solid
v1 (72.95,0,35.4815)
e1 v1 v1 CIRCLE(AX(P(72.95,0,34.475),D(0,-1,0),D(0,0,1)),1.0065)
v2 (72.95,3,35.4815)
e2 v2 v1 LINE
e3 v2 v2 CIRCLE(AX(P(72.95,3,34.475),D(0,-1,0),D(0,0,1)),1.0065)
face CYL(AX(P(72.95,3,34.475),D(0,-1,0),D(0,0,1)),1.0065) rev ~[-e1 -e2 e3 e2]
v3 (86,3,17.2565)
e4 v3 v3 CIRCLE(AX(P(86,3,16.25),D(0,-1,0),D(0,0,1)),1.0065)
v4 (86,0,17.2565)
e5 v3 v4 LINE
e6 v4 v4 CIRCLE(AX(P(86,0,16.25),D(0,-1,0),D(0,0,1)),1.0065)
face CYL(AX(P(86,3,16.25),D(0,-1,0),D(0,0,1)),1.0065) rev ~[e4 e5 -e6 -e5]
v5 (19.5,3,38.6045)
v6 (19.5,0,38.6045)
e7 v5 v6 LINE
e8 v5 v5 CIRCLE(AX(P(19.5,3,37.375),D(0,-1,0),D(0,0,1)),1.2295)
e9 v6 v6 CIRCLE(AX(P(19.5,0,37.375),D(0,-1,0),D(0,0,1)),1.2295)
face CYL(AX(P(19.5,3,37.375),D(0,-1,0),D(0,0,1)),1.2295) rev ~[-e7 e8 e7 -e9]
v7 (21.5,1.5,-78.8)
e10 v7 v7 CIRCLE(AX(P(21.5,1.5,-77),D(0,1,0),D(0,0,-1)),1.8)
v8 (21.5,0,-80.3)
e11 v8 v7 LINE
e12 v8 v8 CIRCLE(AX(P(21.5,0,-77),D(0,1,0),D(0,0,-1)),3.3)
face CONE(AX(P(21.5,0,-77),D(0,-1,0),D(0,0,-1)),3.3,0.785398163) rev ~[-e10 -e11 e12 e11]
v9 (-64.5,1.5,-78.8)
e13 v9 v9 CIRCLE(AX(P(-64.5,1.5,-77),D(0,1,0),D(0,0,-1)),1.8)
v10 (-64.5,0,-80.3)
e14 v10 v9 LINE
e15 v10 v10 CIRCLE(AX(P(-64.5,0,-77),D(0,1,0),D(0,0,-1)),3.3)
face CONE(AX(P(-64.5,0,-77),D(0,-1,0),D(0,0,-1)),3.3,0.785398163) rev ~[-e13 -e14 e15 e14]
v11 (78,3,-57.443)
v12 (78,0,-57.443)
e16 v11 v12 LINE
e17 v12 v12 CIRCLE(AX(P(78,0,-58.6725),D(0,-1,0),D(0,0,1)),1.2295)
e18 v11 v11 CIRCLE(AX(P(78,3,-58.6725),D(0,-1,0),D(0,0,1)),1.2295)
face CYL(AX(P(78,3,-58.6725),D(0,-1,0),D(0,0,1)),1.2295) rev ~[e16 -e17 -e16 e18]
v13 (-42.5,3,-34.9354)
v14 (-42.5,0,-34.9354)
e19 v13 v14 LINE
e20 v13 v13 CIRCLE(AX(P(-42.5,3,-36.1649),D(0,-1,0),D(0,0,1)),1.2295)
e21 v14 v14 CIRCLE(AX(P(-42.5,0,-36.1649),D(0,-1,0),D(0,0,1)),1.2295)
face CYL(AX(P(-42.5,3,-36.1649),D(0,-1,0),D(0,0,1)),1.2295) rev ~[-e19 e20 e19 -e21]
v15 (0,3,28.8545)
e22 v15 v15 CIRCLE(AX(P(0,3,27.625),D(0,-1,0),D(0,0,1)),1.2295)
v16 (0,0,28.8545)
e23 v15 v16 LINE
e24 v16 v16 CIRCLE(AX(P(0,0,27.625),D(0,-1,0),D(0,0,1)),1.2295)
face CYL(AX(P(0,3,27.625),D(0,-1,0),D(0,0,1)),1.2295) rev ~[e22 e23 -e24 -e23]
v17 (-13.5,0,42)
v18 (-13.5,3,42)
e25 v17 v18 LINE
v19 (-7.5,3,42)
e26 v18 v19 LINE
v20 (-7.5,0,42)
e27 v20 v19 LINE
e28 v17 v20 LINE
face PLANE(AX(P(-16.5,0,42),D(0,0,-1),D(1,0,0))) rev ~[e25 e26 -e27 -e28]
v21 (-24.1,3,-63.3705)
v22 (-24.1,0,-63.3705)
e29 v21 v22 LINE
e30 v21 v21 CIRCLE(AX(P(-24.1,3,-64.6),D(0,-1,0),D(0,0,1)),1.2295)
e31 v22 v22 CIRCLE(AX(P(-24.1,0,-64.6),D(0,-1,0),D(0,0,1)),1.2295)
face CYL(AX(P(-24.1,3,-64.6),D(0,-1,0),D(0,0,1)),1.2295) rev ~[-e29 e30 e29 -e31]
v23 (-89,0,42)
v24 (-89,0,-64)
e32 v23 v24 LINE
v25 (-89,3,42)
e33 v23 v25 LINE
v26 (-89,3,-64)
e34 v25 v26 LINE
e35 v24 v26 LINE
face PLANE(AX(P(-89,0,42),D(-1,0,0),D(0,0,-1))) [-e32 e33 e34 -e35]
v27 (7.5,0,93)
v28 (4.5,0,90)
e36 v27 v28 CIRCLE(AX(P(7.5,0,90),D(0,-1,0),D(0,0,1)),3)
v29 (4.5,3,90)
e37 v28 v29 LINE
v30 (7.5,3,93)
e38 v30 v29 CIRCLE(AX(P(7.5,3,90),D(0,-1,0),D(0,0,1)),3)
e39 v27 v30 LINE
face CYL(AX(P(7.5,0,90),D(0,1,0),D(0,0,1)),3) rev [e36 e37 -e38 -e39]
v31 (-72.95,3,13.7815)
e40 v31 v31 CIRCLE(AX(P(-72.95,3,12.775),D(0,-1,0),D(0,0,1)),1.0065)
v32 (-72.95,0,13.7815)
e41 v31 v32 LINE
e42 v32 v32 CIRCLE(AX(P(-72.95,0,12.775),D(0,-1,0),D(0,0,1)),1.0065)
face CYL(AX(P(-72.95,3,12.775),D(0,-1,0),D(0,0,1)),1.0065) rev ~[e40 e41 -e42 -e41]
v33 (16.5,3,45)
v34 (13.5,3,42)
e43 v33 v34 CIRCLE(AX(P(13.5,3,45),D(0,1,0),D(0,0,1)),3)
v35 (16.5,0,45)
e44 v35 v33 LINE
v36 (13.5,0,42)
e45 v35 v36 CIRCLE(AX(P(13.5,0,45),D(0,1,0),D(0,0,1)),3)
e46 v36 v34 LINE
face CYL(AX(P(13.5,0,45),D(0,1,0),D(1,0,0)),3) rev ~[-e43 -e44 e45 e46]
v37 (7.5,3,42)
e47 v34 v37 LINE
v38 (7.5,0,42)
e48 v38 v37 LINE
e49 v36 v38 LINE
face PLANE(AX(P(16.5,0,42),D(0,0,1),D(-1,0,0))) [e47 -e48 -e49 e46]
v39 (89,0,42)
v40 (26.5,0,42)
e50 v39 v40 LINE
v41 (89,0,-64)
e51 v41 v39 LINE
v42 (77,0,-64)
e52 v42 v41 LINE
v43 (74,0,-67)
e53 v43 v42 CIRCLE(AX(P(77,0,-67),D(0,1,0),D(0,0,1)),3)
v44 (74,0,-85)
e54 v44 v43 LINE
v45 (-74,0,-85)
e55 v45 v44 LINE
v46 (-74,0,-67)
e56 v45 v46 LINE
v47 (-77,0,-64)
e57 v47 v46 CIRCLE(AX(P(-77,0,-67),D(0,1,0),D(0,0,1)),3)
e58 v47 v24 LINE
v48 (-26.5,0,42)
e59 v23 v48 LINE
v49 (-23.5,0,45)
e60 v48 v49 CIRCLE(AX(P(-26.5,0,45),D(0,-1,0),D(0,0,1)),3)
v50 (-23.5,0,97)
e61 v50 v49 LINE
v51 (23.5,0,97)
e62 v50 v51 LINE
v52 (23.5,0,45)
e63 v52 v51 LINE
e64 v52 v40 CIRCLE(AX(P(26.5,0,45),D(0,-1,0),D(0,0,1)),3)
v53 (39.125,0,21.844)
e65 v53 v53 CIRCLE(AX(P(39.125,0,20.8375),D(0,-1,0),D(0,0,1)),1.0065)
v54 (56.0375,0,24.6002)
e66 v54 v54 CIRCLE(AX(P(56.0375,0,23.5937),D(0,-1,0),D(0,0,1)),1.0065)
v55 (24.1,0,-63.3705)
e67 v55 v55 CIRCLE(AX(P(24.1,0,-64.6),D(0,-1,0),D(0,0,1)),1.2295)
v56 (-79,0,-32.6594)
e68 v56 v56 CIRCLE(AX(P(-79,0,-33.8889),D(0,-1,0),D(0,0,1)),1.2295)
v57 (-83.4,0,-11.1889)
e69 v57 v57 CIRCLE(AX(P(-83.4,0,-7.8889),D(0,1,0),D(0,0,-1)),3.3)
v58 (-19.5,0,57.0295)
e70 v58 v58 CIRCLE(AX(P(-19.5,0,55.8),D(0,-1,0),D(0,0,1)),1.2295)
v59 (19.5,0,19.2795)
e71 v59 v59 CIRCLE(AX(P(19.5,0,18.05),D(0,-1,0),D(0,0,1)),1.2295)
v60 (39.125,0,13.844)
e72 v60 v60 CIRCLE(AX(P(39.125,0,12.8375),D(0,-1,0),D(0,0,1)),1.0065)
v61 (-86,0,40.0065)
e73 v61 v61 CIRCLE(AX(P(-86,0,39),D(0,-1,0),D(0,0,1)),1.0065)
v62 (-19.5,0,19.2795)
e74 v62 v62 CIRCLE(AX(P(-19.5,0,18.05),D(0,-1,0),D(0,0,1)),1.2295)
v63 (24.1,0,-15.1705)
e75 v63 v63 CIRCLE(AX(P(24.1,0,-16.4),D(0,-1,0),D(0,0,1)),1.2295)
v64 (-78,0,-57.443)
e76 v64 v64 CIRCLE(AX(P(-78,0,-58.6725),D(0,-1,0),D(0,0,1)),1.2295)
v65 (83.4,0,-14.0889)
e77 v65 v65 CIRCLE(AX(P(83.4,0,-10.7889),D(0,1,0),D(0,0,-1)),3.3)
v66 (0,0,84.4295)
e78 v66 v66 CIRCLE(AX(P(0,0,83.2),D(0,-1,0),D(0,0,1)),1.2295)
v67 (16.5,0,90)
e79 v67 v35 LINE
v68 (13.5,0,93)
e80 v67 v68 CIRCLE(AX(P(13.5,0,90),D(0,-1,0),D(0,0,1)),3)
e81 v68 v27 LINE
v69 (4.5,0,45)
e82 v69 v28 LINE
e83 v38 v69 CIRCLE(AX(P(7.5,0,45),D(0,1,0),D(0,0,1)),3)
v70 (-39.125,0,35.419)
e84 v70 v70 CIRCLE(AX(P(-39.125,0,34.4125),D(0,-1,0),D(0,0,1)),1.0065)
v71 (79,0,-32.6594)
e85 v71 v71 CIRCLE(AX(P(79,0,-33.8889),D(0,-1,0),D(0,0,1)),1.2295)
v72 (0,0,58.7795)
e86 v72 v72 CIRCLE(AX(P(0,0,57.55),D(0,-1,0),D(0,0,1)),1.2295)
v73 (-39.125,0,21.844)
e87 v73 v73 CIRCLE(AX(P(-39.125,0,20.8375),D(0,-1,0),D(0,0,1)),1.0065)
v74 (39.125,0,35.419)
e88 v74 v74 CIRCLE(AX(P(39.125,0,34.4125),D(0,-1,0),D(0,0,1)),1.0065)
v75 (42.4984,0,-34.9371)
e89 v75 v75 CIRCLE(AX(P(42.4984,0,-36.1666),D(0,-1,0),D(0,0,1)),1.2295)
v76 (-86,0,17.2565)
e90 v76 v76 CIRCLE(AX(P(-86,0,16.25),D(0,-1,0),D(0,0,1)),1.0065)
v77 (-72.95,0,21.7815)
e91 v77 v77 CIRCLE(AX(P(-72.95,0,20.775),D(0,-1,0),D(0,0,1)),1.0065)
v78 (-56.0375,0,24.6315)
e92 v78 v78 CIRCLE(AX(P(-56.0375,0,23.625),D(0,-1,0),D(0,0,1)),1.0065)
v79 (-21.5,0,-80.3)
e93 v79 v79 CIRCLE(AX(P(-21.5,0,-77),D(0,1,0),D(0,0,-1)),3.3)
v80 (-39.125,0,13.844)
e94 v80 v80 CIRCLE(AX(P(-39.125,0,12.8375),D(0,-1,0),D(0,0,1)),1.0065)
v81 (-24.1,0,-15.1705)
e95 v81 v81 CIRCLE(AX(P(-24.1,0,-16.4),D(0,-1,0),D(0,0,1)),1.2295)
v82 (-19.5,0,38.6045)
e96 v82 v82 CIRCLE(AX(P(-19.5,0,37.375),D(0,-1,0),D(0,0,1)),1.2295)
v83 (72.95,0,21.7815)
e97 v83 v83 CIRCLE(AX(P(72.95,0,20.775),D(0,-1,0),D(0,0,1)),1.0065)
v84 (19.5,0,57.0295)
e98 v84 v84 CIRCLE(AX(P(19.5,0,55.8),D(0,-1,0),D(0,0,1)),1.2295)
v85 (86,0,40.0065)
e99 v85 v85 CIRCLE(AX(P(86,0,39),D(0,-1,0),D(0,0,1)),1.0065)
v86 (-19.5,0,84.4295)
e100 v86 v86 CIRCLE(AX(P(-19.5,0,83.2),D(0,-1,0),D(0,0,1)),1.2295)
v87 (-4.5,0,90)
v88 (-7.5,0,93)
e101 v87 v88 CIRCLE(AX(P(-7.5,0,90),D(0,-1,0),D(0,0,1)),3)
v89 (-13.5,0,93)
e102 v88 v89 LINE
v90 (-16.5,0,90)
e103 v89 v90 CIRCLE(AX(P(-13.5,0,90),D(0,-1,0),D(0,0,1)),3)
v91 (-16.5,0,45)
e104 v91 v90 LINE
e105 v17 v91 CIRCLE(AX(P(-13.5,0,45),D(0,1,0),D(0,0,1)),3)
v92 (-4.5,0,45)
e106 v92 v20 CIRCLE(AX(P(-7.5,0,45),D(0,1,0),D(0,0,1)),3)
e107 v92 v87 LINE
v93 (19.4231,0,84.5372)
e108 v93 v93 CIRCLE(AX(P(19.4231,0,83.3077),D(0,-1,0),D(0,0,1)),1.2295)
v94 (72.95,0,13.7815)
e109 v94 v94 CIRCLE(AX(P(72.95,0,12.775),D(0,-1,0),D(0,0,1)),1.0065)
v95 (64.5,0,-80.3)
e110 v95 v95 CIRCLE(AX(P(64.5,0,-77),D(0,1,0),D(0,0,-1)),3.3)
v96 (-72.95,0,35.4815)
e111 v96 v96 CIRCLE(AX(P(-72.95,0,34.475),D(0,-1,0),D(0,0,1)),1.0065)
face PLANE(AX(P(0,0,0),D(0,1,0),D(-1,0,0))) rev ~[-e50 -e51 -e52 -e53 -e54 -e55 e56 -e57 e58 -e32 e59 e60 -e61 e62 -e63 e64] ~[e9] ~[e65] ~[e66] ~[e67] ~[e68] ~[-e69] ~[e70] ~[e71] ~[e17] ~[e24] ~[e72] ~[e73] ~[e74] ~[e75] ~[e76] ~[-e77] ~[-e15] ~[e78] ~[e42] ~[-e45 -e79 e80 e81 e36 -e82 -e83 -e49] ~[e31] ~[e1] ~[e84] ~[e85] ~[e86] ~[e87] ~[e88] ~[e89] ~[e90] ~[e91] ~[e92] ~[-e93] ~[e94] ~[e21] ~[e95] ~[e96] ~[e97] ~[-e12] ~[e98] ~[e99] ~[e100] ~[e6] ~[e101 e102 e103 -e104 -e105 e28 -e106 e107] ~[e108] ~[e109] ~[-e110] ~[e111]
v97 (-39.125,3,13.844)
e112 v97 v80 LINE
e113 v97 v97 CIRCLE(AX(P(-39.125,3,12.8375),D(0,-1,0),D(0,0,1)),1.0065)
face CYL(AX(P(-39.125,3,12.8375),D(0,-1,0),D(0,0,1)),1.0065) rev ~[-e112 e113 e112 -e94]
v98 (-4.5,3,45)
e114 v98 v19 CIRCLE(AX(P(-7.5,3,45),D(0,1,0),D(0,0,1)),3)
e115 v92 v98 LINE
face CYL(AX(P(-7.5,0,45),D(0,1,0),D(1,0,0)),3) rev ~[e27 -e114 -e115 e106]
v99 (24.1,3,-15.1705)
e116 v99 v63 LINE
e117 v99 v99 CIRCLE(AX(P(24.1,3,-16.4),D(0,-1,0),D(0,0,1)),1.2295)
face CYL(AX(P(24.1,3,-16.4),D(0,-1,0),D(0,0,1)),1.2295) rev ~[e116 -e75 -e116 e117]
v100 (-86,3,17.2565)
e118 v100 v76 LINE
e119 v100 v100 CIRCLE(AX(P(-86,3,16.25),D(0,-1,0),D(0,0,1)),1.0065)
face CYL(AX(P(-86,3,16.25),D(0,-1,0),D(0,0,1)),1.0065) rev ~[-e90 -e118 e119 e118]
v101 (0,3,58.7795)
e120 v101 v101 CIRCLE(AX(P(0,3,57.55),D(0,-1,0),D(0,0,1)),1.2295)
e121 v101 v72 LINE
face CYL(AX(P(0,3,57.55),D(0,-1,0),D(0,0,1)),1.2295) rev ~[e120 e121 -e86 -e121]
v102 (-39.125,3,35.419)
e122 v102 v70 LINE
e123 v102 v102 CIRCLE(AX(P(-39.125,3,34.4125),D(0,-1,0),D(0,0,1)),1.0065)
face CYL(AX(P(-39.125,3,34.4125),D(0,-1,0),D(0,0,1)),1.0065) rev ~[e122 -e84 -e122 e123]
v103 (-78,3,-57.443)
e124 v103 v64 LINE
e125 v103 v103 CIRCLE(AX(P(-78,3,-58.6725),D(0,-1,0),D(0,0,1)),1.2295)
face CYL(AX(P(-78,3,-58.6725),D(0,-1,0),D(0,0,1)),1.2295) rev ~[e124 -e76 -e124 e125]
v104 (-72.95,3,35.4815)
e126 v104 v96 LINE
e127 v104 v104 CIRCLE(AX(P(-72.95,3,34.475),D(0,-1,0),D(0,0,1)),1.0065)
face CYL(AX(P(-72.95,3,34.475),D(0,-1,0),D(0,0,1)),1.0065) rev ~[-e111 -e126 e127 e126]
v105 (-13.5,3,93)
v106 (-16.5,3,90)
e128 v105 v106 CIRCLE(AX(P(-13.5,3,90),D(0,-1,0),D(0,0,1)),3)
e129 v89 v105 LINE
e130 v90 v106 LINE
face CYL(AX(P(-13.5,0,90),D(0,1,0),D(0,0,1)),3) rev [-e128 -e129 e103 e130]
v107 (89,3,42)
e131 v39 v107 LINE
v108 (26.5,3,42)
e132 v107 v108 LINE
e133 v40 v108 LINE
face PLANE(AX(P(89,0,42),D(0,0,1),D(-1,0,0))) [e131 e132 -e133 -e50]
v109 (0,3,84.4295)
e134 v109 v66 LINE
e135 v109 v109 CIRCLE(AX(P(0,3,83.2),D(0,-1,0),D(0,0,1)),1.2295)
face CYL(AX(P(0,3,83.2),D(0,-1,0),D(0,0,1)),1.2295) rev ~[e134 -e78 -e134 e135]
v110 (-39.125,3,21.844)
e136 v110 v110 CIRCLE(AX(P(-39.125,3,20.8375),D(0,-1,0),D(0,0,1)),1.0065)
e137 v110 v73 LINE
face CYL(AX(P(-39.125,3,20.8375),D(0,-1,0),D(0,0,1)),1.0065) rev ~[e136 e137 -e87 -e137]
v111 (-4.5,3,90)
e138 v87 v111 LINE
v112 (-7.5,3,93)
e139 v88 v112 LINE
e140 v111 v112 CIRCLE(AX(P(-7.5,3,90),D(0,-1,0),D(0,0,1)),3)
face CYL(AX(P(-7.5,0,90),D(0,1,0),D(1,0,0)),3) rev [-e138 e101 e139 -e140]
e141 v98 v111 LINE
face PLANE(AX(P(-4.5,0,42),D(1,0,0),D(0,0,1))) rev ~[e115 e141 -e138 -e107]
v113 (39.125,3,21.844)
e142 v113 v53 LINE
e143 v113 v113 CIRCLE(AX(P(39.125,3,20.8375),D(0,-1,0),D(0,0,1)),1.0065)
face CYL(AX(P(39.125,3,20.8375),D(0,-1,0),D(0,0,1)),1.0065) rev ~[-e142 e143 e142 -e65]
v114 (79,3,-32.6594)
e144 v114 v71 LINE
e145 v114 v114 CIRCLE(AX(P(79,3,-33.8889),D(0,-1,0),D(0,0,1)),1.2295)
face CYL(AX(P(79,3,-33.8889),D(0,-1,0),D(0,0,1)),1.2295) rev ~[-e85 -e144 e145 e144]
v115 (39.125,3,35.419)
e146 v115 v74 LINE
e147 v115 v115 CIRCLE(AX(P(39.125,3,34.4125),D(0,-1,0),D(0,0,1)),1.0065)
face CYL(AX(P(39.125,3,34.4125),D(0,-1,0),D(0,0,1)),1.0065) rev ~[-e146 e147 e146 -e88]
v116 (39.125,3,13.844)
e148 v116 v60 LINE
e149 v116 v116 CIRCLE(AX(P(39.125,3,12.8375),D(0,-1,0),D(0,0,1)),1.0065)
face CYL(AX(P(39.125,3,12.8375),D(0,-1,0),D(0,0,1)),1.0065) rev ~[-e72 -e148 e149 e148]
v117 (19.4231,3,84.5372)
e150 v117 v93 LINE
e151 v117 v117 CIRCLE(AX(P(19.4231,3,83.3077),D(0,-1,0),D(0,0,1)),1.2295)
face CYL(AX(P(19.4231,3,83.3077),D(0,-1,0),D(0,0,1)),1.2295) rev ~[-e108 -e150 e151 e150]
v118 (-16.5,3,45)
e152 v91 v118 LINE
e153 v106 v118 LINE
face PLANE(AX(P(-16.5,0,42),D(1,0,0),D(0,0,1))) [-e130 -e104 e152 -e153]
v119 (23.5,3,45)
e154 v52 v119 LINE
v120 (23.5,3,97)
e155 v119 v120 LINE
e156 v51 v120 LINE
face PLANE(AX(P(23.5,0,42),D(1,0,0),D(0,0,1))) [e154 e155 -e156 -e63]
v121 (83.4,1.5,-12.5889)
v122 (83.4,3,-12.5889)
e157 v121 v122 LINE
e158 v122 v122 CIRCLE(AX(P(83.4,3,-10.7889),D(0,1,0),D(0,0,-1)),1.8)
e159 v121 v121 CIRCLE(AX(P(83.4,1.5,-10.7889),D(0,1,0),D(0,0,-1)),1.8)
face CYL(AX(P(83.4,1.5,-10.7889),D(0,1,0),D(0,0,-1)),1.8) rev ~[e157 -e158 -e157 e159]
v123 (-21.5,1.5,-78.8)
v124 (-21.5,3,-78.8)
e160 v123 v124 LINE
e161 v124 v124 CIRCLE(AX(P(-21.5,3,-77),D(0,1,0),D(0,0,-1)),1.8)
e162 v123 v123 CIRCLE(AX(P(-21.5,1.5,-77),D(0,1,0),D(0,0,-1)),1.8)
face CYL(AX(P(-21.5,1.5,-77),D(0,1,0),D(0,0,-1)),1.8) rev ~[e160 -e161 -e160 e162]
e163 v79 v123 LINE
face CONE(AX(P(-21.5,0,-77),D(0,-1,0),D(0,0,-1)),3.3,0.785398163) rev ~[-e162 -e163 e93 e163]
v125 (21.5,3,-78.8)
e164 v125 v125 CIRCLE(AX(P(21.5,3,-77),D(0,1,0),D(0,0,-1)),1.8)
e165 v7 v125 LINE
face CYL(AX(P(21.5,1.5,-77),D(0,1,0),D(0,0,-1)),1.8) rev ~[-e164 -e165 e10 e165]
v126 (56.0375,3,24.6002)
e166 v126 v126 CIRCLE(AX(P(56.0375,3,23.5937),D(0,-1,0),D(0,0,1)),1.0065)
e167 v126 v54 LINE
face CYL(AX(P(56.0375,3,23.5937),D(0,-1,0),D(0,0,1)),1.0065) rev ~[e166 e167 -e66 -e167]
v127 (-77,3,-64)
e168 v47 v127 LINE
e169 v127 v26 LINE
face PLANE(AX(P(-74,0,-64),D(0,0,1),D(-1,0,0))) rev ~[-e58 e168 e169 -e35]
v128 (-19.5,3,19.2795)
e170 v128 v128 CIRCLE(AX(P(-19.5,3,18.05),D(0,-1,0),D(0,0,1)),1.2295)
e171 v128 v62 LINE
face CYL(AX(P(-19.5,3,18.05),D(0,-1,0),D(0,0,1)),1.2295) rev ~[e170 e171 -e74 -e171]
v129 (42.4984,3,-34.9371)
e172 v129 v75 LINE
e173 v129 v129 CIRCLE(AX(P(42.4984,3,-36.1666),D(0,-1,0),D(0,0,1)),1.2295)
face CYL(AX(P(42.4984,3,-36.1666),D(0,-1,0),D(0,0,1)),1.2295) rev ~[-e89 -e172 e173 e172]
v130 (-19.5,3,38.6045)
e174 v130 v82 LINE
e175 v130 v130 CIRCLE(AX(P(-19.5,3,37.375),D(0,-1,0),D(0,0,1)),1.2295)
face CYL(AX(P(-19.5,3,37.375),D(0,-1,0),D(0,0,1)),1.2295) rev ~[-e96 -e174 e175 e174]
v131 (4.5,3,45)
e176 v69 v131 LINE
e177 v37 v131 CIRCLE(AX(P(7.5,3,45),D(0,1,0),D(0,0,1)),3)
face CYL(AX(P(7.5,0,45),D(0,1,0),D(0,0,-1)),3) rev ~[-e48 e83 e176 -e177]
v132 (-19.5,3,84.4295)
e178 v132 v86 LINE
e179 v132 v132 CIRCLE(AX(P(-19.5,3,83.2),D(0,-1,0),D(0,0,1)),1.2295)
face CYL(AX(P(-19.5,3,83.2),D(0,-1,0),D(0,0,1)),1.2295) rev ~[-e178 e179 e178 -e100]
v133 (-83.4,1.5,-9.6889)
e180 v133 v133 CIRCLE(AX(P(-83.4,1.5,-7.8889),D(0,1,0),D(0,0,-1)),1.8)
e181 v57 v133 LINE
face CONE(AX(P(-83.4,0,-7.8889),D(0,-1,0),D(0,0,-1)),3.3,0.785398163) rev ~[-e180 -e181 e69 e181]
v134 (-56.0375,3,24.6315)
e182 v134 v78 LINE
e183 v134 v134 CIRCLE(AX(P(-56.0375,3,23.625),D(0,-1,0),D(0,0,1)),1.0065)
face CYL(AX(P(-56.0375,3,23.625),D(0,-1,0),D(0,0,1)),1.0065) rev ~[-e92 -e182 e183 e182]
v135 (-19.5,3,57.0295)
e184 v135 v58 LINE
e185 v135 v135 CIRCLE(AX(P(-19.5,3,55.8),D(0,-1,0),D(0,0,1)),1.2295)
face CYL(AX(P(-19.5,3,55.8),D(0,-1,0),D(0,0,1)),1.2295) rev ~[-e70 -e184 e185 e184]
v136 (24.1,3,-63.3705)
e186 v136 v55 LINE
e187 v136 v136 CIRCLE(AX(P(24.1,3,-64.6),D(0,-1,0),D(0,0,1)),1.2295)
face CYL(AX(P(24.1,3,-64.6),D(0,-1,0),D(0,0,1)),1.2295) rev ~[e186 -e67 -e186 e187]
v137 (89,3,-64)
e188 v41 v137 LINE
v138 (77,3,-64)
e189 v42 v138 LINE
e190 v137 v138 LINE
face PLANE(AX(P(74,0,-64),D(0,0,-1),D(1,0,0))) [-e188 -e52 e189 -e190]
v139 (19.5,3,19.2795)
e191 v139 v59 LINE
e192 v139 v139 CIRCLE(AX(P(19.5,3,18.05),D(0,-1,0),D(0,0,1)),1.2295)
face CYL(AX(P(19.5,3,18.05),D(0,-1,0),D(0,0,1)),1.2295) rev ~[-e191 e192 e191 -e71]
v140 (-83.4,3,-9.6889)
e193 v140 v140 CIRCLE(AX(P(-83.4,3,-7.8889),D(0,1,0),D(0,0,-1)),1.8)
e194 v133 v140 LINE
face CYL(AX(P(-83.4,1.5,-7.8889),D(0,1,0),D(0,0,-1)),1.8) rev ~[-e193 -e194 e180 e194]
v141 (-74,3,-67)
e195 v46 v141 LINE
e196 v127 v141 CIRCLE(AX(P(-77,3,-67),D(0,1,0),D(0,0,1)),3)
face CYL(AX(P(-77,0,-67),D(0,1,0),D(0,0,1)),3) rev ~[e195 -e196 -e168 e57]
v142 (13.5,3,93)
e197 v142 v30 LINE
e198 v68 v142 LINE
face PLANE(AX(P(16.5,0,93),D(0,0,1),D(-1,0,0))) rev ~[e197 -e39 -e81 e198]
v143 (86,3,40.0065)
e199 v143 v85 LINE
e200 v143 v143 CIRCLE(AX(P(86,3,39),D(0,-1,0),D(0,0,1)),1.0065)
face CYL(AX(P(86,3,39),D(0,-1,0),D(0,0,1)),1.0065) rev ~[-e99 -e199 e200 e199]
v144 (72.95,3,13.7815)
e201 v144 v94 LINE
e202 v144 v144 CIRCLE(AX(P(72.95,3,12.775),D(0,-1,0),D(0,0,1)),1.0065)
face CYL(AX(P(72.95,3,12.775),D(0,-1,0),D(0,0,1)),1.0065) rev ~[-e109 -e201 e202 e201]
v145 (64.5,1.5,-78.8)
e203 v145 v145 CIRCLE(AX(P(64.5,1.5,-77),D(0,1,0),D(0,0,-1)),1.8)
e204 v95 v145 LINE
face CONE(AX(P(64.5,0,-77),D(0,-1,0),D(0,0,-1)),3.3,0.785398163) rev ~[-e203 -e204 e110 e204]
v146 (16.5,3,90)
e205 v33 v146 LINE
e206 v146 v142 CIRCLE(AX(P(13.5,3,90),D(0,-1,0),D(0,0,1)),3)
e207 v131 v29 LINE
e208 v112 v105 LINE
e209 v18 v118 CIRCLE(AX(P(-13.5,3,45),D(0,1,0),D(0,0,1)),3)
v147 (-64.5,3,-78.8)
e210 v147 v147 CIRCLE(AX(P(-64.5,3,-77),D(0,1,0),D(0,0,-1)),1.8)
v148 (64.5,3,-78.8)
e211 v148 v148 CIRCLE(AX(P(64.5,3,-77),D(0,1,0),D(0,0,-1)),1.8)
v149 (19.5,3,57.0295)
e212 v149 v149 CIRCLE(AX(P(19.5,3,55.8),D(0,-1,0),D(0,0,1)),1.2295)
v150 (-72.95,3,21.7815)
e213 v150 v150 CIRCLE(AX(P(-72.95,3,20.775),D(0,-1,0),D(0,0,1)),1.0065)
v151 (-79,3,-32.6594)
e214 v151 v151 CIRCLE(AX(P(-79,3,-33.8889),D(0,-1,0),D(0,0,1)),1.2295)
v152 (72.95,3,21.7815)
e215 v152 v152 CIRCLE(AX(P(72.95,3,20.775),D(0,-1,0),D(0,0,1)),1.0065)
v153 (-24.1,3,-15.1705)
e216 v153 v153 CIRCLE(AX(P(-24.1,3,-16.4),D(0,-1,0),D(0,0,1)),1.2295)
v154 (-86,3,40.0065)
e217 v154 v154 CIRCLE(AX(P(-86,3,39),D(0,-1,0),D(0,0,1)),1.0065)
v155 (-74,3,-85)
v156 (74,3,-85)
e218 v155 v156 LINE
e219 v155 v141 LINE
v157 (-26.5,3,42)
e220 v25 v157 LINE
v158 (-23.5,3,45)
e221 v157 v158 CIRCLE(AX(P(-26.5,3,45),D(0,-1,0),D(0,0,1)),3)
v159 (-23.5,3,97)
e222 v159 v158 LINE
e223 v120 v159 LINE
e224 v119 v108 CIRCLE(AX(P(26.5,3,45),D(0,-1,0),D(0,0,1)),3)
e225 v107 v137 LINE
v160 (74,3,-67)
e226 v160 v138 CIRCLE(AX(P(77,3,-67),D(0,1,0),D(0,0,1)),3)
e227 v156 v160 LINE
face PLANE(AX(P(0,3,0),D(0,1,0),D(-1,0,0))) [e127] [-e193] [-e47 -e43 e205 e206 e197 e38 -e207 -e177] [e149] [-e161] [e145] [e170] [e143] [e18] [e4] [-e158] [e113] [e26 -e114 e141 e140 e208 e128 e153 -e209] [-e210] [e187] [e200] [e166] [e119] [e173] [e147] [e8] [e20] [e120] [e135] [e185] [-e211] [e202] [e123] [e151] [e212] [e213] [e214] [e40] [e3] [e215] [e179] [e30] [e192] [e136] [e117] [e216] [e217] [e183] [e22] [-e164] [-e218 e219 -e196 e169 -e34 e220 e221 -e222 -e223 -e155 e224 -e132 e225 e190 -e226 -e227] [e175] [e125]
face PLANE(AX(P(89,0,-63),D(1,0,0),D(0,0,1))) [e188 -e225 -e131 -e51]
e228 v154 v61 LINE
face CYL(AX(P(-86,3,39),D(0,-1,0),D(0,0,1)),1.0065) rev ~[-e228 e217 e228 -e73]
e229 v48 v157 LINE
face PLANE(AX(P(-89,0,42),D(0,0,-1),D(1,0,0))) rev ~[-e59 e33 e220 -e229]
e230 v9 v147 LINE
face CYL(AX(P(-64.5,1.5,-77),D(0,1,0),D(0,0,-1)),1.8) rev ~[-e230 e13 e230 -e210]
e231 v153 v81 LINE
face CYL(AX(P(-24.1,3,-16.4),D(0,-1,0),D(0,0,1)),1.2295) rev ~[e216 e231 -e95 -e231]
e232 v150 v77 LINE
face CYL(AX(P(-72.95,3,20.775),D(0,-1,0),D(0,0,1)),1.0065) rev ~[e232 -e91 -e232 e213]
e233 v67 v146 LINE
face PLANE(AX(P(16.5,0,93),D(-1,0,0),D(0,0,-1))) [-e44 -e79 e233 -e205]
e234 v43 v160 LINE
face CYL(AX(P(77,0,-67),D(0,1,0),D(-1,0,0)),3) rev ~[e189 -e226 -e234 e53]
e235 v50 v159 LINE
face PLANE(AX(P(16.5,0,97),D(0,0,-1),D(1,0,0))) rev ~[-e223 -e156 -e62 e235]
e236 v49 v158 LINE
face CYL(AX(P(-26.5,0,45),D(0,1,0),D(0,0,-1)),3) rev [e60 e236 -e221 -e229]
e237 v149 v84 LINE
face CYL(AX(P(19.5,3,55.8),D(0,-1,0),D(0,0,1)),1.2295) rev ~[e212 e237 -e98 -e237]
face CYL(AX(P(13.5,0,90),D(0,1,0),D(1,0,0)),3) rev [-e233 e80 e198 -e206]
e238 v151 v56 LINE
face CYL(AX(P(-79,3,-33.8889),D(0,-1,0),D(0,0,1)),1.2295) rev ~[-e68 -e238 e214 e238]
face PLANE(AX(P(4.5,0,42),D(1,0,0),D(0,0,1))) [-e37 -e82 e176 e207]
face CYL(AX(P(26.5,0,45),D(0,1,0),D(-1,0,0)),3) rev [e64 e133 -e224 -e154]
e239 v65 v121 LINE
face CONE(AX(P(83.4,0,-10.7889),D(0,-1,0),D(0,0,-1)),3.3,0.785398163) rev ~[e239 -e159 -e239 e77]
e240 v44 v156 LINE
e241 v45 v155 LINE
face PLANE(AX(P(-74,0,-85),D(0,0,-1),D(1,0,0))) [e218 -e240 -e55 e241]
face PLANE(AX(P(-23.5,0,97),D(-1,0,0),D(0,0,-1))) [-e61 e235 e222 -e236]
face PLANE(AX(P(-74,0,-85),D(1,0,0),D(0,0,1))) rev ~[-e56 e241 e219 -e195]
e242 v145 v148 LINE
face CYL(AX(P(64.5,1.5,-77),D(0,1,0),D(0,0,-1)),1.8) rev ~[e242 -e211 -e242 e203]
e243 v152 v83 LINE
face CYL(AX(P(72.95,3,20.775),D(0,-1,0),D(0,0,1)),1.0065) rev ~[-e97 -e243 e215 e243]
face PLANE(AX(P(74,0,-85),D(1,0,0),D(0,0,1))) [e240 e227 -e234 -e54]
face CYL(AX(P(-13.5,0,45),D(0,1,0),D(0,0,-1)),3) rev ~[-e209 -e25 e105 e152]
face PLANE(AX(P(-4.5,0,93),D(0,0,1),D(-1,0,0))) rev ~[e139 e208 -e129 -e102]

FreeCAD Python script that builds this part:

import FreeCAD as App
import Part
import Sketcher


def edges_at(feature, points):
    """Names of the edges that pass closest to the given points."""
    edges = feature.Shape.Edges
    near = lambda p: min(range(len(edges)), key=lambda i: edges[i].distToShape(Part.Vertex(*p))[0])
    return sorted({f"Edge{near(p) + 1}" for p in points})


def add_polygon(sketch, points):
    """Adds a closed chain of lines whose ends are joined by coincident constraints."""
    first, n = sketch.GeometryCount, len(points)
    for a, b in zip(points, points[1:] + points[:1]):
        sketch.addGeometry(Part.LineSegment(App.Vector(*a, 0), App.Vector(*b, 0)), False)
    for i in range(n):
        sketch.addConstraint(Sketcher.Constraint("Coincident", first + i, 2, first + (i + 1) % n, 1))

doc = App.newDocument("Part")
body = doc.addObject("PartDesign::Body", "Body")

# Sketch on XZ plane
sketch1 = body.newObject("Sketcher::SketchObject", "Sketch")
sketch1.AttachmentSupport = (doc.getObject("XZ_Plane"), [""])
sketch1.MapMode = "FlatFace"
add_polygon(sketch1, [(24, 97), (24, 42), (89, 42), (89, -64), (74, -64), (74, -85), (-74, -85), (-74, -64), (-89, -64), (-89, 42), (-24, 42), (-24, 97)])  # lines 0-11
add_polygon(sketch1, [(16, 93), (4, 93), (4, 42), (16, 42)])  # lines 12-15
add_polygon(sketch1, [(-4, 42), (-4, 93), (-16, 93), (-16, 42)])  # lines 16-19
sketch1.addConstraint([
    Sketcher.Constraint("Vertical", 0),
    Sketcher.Constraint("Horizontal", 1),
    Sketcher.Constraint("Vertical", 2),
    Sketcher.Constraint("Horizontal", 3),
    Sketcher.Constraint("Vertical", 4),
    Sketcher.Constraint("Horizontal", 5),
    Sketcher.Constraint("Vertical", 6),
    Sketcher.Constraint("Horizontal", 7),
    Sketcher.Constraint("Vertical", 8),
    Sketcher.Constraint("Horizontal", 9),
    Sketcher.Constraint("Vertical", 10),
    Sketcher.Constraint("Horizontal", 11),
    Sketcher.Constraint("Horizontal", 12),
    Sketcher.Constraint("Vertical", 13),
    Sketcher.Constraint("Horizontal", 14),
    Sketcher.Constraint("Vertical", 15),
    Sketcher.Constraint("Vertical", 16),
    Sketcher.Constraint("Horizontal", 17),
    Sketcher.Constraint("Vertical", 18),
    Sketcher.Constraint("Horizontal", 19),
    Sketcher.Constraint("Symmetric", 3, 2, 6, 2, -2),
    Sketcher.Constraint("Symmetric", 1, 2, 8, 2, -2),
    Sketcher.Constraint("Symmetric", 12, 2, 16, 2, -2),
    Sketcher.Constraint("Symmetric", 14, 2, 18, 2, -2),
    Sketcher.Constraint("Horizontal", 9, 2, 13, 2),
    Sketcher.Constraint("Equal", 1, 9),
    Sketcher.Constraint("DistanceX", 3, 2, 3, 1, 15.0),
    Sketcher.Constraint("DistanceY", 0, 2, 0, 1, 55.0),
    Sketcher.Constraint("DistanceY", 4, 2, 4, 1, 21.0),
    Sketcher.Constraint("DistanceX", 8, 2, 1, 2, 178.0),
    Sketcher.Constraint("DistanceY", 12, 2, 11, 2, 4.0),
    Sketcher.Constraint("DistanceX", 14, 2, 0, 2, 7.0),
    Sketcher.Constraint("DistanceX", 16, 2, 12, 2, 9.0),
    Sketcher.Constraint("DistanceX", 16, 2, 15, 2, 21.0),
    Sketcher.Constraint("DistanceY", 2, 2, 2, 1, 106.0),
    Sketcher.Constraint("DistanceY", -1, 1, 0, 2, 42.0),
])
pad1 = body.newObject("PartDesign::Pad", "Pad")
pad1.Profile = sketch1
pad1.Length = 3
pad1.Reversed = True
doc.recompute()

fillet = body.newObject("PartDesign::Fillet", "Fillet")
fillet.Base = (pad1, edges_at(pad1, [
    (-16.5, 1.5, 42),
    (-4.5, 1.5, 42),
    (-23.5, 1.5, 42),
    (16.5, 1.5, 42),
    (-16.5, 1.5, 93),
    (-4.5, 1.5, 93),
    (4.5, 1.5, 93),
    (16.5, 1.5, 93),
    (4.5, 1.5, 42),
    (23.5, 1.5, 42),
    (74, 1.5, -64),
    (-74, 1.5, -64),
]))
fillet.Radius = 3

# Sketch on XZ plane
sketch2 = body.newObject("Sketcher::SketchObject", "Sketch001")
sketch2.AttachmentSupport = (doc.getObject("XZ_Plane"), [""])
sketch2.MapMode = "FlatFace"
sketch2.AttachmentOffset = App.Placement(App.Vector(0, 0, -3), App.Rotation())
sketch2.addGeometry([
    Part.Circle(App.Vector(19.4, 83.3, 0), App.Vector(0, 0, 1), 1.2),  # 0
    Part.Circle(App.Vector(0, 83.2, 0), App.Vector(0, 0, 1), 1.2),  # 1
    Part.Circle(App.Vector(-19.5, 83.2, 0), App.Vector(0, 0, 1), 1.2),  # 2
    Part.Circle(App.Vector(19.5, 55.8, 0), App.Vector(0, 0, 1), 1.2),  # 3
    Part.Circle(App.Vector(0, 57.5, 0), App.Vector(0, 0, 1), 1.2),  # 4
    Part.Circle(App.Vector(-19.5, 55.8, 0), App.Vector(0, 0, 1), 1.2),  # 5
    Part.Circle(App.Vector(-19.5, 37.4, 0), App.Vector(0, 0, 1), 1.2),  # 6
    Part.Circle(App.Vector(-19.5, 18.1, 0), App.Vector(0, 0, 1), 1.2),  # 7
    Part.Circle(App.Vector(0, 27.6, 0), App.Vector(0, 0, 1), 1.2),  # 8
    Part.Circle(App.Vector(19.5, 37.4, 0), App.Vector(0, 0, 1), 1.2),  # 9
    Part.Circle(App.Vector(19.5, 18.1, 0), App.Vector(0, 0, 1), 1.2),  # 10
    Part.Circle(App.Vector(79, -33.9, 0), App.Vector(0, 0, 1), 1.2),  # 11
    Part.Circle(App.Vector(78, -58.7, 0), App.Vector(0, 0, 1), 1.2),  # 12
    Part.Circle(App.Vector(42.5, -36.2, 0), App.Vector(0, 0, 1), 1.2),  # 13
    Part.Circle(App.Vector(24.1, -16.4, 0), App.Vector(0, 0, 1), 1.2),  # 14
    Part.Circle(App.Vector(-24.1, -16.4, 0), App.Vector(0, 0, 1), 1.2),  # 15
    Part.Circle(App.Vector(-24.1, -64.6, 0), App.Vector(0, 0, 1), 1.2),  # 16
    Part.Circle(App.Vector(24.1, -64.6, 0), App.Vector(0, 0, 1), 1.2),  # 17
    Part.Circle(App.Vector(-42.5, -36.2, 0), App.Vector(0, 0, 1), 1.2),  # 18
    Part.Circle(App.Vector(-78, -58.7, 0), App.Vector(0, 0, 1), 1.2),  # 19
    Part.Circle(App.Vector(-79, -33.9, 0), App.Vector(0, 0, 1), 1.2),  # 20
], False)
sketch2.addConstraint([
    Sketcher.Constraint("Equal", 0, 1),
    Sketcher.Constraint("Equal", 1, 2),
    Sketcher.Constraint("Equal", 2, 3),
    Sketcher.Constraint("Equal", 3, 4),
    Sketcher.Constraint("Equal", 4, 5),
    Sketcher.Constraint("Equal", 5, 6),
    Sketcher.Constraint("Equal", 6, 7),
    Sketcher.Constraint("Equal", 7, 8),
    Sketcher.Constraint("Equal", 8, 9),
    Sketcher.Constraint("Equal", 9, 10),
    Sketcher.Constraint("Equal", 10, 11),
    Sketcher.Constraint("Equal", 11, 12),
    Sketcher.Constraint("Equal", 12, 13),
    Sketcher.Constraint("Equal", 13, 14),
    Sketcher.Constraint("Equal", 14, 15),
    Sketcher.Constraint("Equal", 15, 16),
    Sketcher.Constraint("Equal", 16, 17),
    Sketcher.Constraint("Equal", 17, 18),
    Sketcher.Constraint("Equal", 18, 19),
    Sketcher.Constraint("Equal", 19, 20),
    Sketcher.Constraint("Symmetric", 3, 3, 5, 3, -2),
    Sketcher.Constraint("Symmetric", 6, 3, 9, 3, -2),
    Sketcher.Constraint("Symmetric", 7, 3, 10, 3, -2),
    Sketcher.Constraint("Symmetric", 14, 3, 15, 3, -2),
    Sketcher.Constraint("Symmetric", 16, 3, 17, 3, -2),
    Sketcher.Constraint("Symmetric", 12, 3, 19, 3, -2),
    Sketcher.Constraint("Symmetric", 11, 3, 20, 3, -2),
    Sketcher.Constraint("PointOnObject", 1, 3, -2),
    Sketcher.Constraint("PointOnObject", 4, 3, -2),
    Sketcher.Constraint("PointOnObject", 8, 3, -2),
    Sketcher.Constraint("Horizontal", 1, 3, 2, 3),
    Sketcher.Constraint("Vertical", 2, 3, 5, 3),
    Sketcher.Constraint("Vertical", 5, 3, 6, 3),
    Sketcher.Constraint("Vertical", 6, 3, 7, 3),
    Sketcher.Constraint("Vertical", 15, 3, 16, 3),
    Sketcher.Constraint("Diameter", 0, 2.459),
    Sketcher.Constraint("DistanceX", -1, 1, 11, 3, 79.0),
    Sketcher.Constraint("DistanceX", -1, 1, 12, 3, 78.0),
    Sketcher.Constraint("DistanceX", 2, 3, 3, 3, 39.0),
    Sketcher.Constraint("DistanceX", 18, 3, 7, 3, 23.0),
    Sketcher.Constraint("DistanceY", -1, 1, 1, 3, 83.2),
    Sketcher.Constraint("DistanceY", -1, 1, 3, 3, 55.8),
    Sketcher.Constraint("DistanceX", -1, 1, 14, 3, 24.1),
    Sketcher.Constraint("DistanceY", 14, 3, -1, 1, 16.4),
    Sketcher.Constraint("DistanceY", 16, 3, -1, 1, 64.6),
    Sketcher.Constraint("DistanceY", 7, 3, 4, 3, 39.5),
    Sketcher.Constraint("DistanceY", -1, 1, 4, 3, 57.55),
    Sketcher.Constraint("DistanceY", 8, 3, 6, 3, 9.75),
    Sketcher.Constraint("DistanceX", -1, 1, 0, 3, 19.423),
    Sketcher.Constraint("DistanceY", -1, 1, 6, 3, 37.375),
    Sketcher.Constraint("DistanceY", 11, 3, -1, 1, 33.889),
    Sketcher.Constraint("DistanceY", 18, 3, -1, 1, 36.165),
    Sketcher.Constraint("DistanceY", 12, 3, 13, 3, 22.506),
    Sketcher.Constraint("DistanceY", -1, 1, 0, 3, 83.3077),
    Sketcher.Constraint("DistanceY", 12, 3, -1, 1, 58.6725),
    Sketcher.Constraint("DistanceX", -1, 1, 13, 3, 42.4984),
])
doc.recompute()
hole = body.newObject("PartDesign::Hole", "Hole")
hole.Profile = sketch2
hole.ThreadType = "None"
hole.Diameter = 2.459
hole.DepthType = "ThroughAll"
hole.Reversed = True

# Sketch on XZ plane
sketch3 = body.newObject("Sketcher::SketchObject", "Sketch002")
sketch3.AttachmentSupport = (doc.getObject("XZ_Plane"), [""])
sketch3.MapMode = "FlatFace"
sketch3.AttachmentOffset = App.Placement(App.Vector(0, 0, -3), App.Rotation())
sketch3.addGeometry([
    Part.Circle(App.Vector(73, 34.5, 0), App.Vector(0, 0, 1), 1),  # 0
    Part.Circle(App.Vector(73, 20.8, 0), App.Vector(0, 0, 1), 1),  # 1
    Part.Circle(App.Vector(39.1, 20.8, 0), App.Vector(0, 0, 1), 1),  # 2
    Part.Circle(App.Vector(39.1, 34.4, 0), App.Vector(0, 0, 1), 1),  # 3
    Part.Circle(App.Vector(86, 39, 0), App.Vector(0, 0, 1), 1),  # 4
    Part.Circle(App.Vector(86, 16.2, 0), App.Vector(0, 0, 1), 1),  # 5
    Part.Circle(App.Vector(-86, 39, 0), App.Vector(0, 0, 1), 1),  # 6
    Part.Circle(App.Vector(-86, 16.2, 0), App.Vector(0, 0, 1), 1),  # 7
    Part.Circle(App.Vector(-73, 20.8, 0), App.Vector(0, 0, 1), 1),  # 8
    Part.Circle(App.Vector(-73, 34.5, 0), App.Vector(0, 0, 1), 1),  # 9
    Part.Circle(App.Vector(-39.1, 34.4, 0), App.Vector(0, 0, 1), 1),  # 10
    Part.Circle(App.Vector(-39.1, 20.8, 0), App.Vector(0, 0, 1), 1),  # 11
    Part.Circle(App.Vector(73, 12.8, 0), App.Vector(0, 0, 1), 1),  # 12
    Part.Circle(App.Vector(39.1, 12.8, 0), App.Vector(0, 0, 1), 1),  # 13
    Part.Circle(App.Vector(-39.1, 12.8, 0), App.Vector(0, 0, 1), 1),  # 14
    Part.Circle(App.Vector(-73, 12.8, 0), App.Vector(0, 0, 1), 1),  # 15
    Part.Circle(App.Vector(56, 23.6, 0), App.Vector(0, 0, 1), 1),  # 16
    Part.Circle(App.Vector(-56, 23.6, 0), App.Vector(0, 0, 1), 1),  # 17
], False)
sketch3.addConstraint([
    Sketcher.Constraint("Equal", 0, 1),
    Sketcher.Constraint("Equal", 1, 2),
    Sketcher.Constraint("Equal", 2, 3),
    Sketcher.Constraint("Equal", 3, 4),
    Sketcher.Constraint("Equal", 4, 5),
    Sketcher.Constraint("Equal", 5, 6),
    Sketcher.Constraint("Equal", 6, 7),
    Sketcher.Constraint("Equal", 7, 8),
    Sketcher.Constraint("Equal", 8, 9),
    Sketcher.Constraint("Equal", 9, 10),
    Sketcher.Constraint("Equal", 10, 11),
    Sketcher.Constraint("Equal", 11, 12),
    Sketcher.Constraint("Equal", 12, 13),
    Sketcher.Constraint("Equal", 13, 14),
    Sketcher.Constraint("Equal", 14, 15),
    Sketcher.Constraint("Equal", 15, 16),
    Sketcher.Constraint("Equal", 16, 17),
    Sketcher.Constraint("Symmetric", 4, 3, 6, 3, -2),
    Sketcher.Constraint("Symmetric", 5, 3, 7, 3, -2),
    Sketcher.Constraint("Symmetric", 1, 3, 8, 3, -2),
    Sketcher.Constraint("Symmetric", 0, 3, 9, 3, -2),
    Sketcher.Constraint("Symmetric", 3, 3, 10, 3, -2),
    Sketcher.Constraint("Symmetric", 2, 3, 11, 3, -2),
    Sketcher.Constraint("Symmetric", 13, 3, 14, 3, -2),
    Sketcher.Constraint("Symmetric", 12, 3, 15, 3, -2),
    Sketcher.Constraint("Vertical", 0, 3, 1, 3),
    Sketcher.Constraint("Vertical", 2, 3, 3, 3),
    Sketcher.Constraint("Vertical", 4, 3, 5, 3),
    Sketcher.Constraint("Vertical", 1, 3, 12, 3),
    Sketcher.Constraint("Vertical", 3, 3, 13, 3),
    Sketcher.Constraint("Diameter", 0, 2.013),
    Sketcher.Constraint("DistanceX", -1, 1, 4, 3, 86.0),
    Sketcher.Constraint("DistanceY", -1, 1, 4, 3, 39.0),
    Sketcher.Constraint("DistanceY", 12, 3, 1, 3, 8.0),
    Sketcher.Constraint("DistanceY", 13, 3, 2, 3, 8.0),
    Sketcher.Constraint("DistanceY", 1, 3, 0, 3, 13.7),
    Sketcher.Constraint("DistanceX", 8, 3, 1, 3, 145.9),
    Sketcher.Constraint("DistanceY", -1, 1, 5, 3, 16.25),
    Sketcher.Constraint("DistanceX", 10, 3, 3, 3, 78.25),
    Sketcher.Constraint("DistanceY", 8, 3, 17, 3, 2.85),
    Sketcher.Constraint("DistanceY", -1, 1, 0, 3, 34.475),
    Sketcher.Constraint("DistanceY", 2, 3, 3, 3, 13.575),
    Sketcher.Constraint("DistanceY", -1, 1, 2, 3, 20.8375),
    Sketcher.Constraint("DistanceX", -1, 1, 16, 3, 56.0375),
    Sketcher.Constraint("DistanceY", -1, 1, 16, 3, 23.5937),
    Sketcher.Constraint("DistanceX", 17, 3, -1, 1, 56.0375),
])
doc.recompute()
hole2 = body.newObject("PartDesign::Hole", "Hole001")
hole2.Profile = sketch3
hole2.ThreadType = "None"
hole2.Diameter = 2.013
hole2.DepthType = "ThroughAll"
hole2.Reversed = True

# Sketch on XZ plane
sketch4 = body.newObject("Sketcher::SketchObject", "Sketch003")
sketch4.AttachmentSupport = (doc.getObject("XZ_Plane"), [""])
sketch4.MapMode = "FlatFace"
sketch4.addGeometry([
    Part.Circle(App.Vector(-83.4, -7.9, 0), App.Vector(0, 0, 1), 1.8),  # 0
    Part.Circle(App.Vector(83.4, -10.8, 0), App.Vector(0, 0, 1), 1.8),  # 1
    Part.Circle(App.Vector(64.5, -77, 0), App.Vector(0, 0, 1), 1.8),  # 2
    Part.Circle(App.Vector(21.5, -77, 0), App.Vector(0, 0, 1), 1.8),  # 3
    Part.Circle(App.Vector(-21.5, -77, 0), App.Vector(0, 0, 1), 1.8),  # 4
    Part.Circle(App.Vector(-64.5, -77, 0), App.Vector(0, 0, 1), 1.8),  # 5
], False)
sketch4.addConstraint([
    Sketcher.Constraint("Equal", 0, 1),
    Sketcher.Constraint("Equal", 1, 2),
    Sketcher.Constraint("Equal", 2, 3),
    Sketcher.Constraint("Equal", 3, 4),
    Sketcher.Constraint("Equal", 4, 5),
    Sketcher.Constraint("Symmetric", 3, 3, 4, 3, -2),
    Sketcher.Constraint("Symmetric", 2, 3, 5, 3, -2),
    Sketcher.Constraint("Horizontal", 2, 3, 3, 3),
    Sketcher.Constraint("Diameter", 0, 3.6),
    Sketcher.Constraint("DistanceY", 2, 3, -1, 1, 77.0),
    Sketcher.Constraint("DistanceX", 3, 3, 2, 3, 43.0),
    Sketcher.Constraint("DistanceX", 4, 3, 3, 3, 43.0),
    Sketcher.Constraint("DistanceX", 0, 3, -1, 1, 83.4),
    Sketcher.Constraint("DistanceX", -1, 1, 1, 3, 83.4),
    Sketcher.Constraint("DistanceY", 1, 3, 0, 3, 2.9),
    Sketcher.Constraint("DistanceY", 0, 3, -1, 1, 7.889),
])
doc.recompute()
hole3 = body.newObject("PartDesign::Hole", "Hole002")
hole3.Profile = sketch4
hole3.ThreadType = "None"
hole3.Diameter = 3.6
hole3.DepthType = "ThroughAll"
hole3.HoleCutType = "Countersink"
hole3.HoleCutDiameter = 6.6
hole3.HoleCutCountersinkAngle = 90

doc.recompute()
